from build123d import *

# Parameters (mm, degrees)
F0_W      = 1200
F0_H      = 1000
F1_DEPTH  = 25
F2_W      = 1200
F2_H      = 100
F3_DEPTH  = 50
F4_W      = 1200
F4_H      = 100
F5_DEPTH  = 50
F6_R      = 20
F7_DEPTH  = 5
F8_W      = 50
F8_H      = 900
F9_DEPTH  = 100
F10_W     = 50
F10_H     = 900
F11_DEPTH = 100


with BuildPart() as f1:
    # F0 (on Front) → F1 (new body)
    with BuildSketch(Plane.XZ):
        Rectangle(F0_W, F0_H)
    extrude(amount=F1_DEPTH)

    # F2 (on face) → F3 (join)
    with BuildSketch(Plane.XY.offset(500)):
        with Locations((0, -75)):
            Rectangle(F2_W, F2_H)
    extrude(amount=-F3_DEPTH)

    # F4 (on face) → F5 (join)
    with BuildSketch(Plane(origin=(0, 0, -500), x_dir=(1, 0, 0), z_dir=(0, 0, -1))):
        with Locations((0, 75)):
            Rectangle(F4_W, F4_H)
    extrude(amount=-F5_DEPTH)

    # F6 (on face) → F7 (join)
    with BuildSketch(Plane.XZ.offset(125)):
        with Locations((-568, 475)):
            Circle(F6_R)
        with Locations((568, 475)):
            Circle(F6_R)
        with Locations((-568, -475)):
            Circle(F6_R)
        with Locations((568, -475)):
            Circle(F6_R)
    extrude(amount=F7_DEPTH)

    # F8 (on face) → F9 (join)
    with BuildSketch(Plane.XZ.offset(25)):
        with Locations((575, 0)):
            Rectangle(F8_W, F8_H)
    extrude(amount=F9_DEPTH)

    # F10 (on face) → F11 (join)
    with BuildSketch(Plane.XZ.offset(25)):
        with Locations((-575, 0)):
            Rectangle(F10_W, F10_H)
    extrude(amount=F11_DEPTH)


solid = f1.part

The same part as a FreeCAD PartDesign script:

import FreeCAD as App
import Part
import Sketcher
from FreeCAD import Vector


def add_polygon(sketch, points):
    """Adds a closed chain of lines whose ends are joined by coincident constraints."""
    first, n = sketch.GeometryCount, len(points)
    for a, b in zip(points, points[1:] + points[:1]):
        sketch.addGeometry(Part.LineSegment(App.Vector(*a, 0), App.Vector(*b, 0)), False)
    for i in range(n):
        sketch.addConstraint(Sketcher.Constraint("Coincident", first + i, 2, first + (i + 1) % n, 1))

doc = App.newDocument("Part")
body = doc.addObject("PartDesign::Body", "Body")

# Sketch on XZ plane
sketch1 = doc.addObject("Sketcher::SketchObject", "Sketch")
body.addObject(sketch1)
sketch1.AttachmentSupport = (doc.XZ_Plane, [""])
sketch1.MapMode = "FlatFace"
add_polygon(sketch1, [(-600, 500), (-600, -500), (600, -500), (600, 500)])  # lines 0-3
sketch1.addConstraint(Sketcher.Constraint("Vertical", 0))
sketch1.addConstraint(Sketcher.Constraint("Horizontal", 1))
sketch1.addConstraint(Sketcher.Constraint("Vertical", 2))
sketch1.addConstraint(Sketcher.Constraint("Horizontal", 3))
sketch1.addConstraint(Sketcher.Constraint("Symmetric", 0, 2, 2, 2, -1, 1))
sketch1.addConstraint(Sketcher.Constraint("DistanceX", 1, 1, 1, 2, 1200.0))
sketch1.addConstraint(Sketcher.Constraint("DistanceY", 0, 2, 0, 1, 1000.0))
pad1 = doc.addObject("PartDesign::Pad", "Pad")
body.addObject(pad1)
pad1.Profile = sketch1
pad1.Length = 25

# Sketch on XY plane
sketch2 = doc.addObject("Sketcher::SketchObject", "Sketch001")
body.addObject(sketch2)
sketch2.AttachmentSupport = (doc.XY_Plane, [""])
sketch2.MapMode = "FlatFace"
sketch2.AttachmentOffset = App.Placement(Vector(0, 0, 500), App.Rotation())
add_polygon(sketch2, [(-600, -25), (-600, -125), (600, -125), (600, -25)])  # lines 0-3
sketch2.addConstraint(Sketcher.Constraint("Vertical", 0))
sketch2.addConstraint(Sketcher.Constraint("Horizontal", 1))
sketch2.addConstraint(Sketcher.Constraint("Vertical", 2))
sketch2.addConstraint(Sketcher.Constraint("Horizontal", 3))
sketch2.addConstraint(Sketcher.Constraint("DistanceX", 1, 1, 1, 2, 1200.0))
sketch2.addConstraint(Sketcher.Constraint("DistanceY", 0, 2, 0, 1, 100.0))
sketch2.addConstraint(Sketcher.Constraint("DistanceX", 0, 2, -1, 1, 600.0))
sketch2.addConstraint(Sketcher.Constraint("DistanceY", 0, 2, -1, 1, 125.0))
pad2 = doc.addObject("PartDesign::Pad", "Pad001")
body.addObject(pad2)
pad2.Profile = sketch2
pad2.Length = 50
pad2.Reversed = True

# Sketch on XY plane
sketch3 = doc.addObject("Sketcher::SketchObject", "Sketch002")
body.addObject(sketch3)
sketch3.AttachmentSupport = (doc.XY_Plane, [""])
sketch3.MapMode = "FlatFace"
sketch3.AttachmentOffset = App.Placement(Vector(0, 0, -500), App.Rotation())
add_polygon(sketch3, [(-600, -125), (-600, -25), (600, -25), (600, -125)])  # lines 0-3
sketch3.addConstraint(Sketcher.Constraint("Vertical", 0))
sketch3.addConstraint(Sketcher.Constraint("Horizontal", 1))
sketch3.addConstraint(Sketcher.Constraint("Vertical", 2))
sketch3.addConstraint(Sketcher.Constraint("Horizontal", 3))
sketch3.addConstraint(Sketcher.Constraint("DistanceX", 1, 1, 1, 2, 1200.0))
sketch3.addConstraint(Sketcher.Constraint("DistanceY", 0, 1, 0, 2, 100.0))
sketch3.addConstraint(Sketcher.Constraint("DistanceX", 0, 2, -1, 1, 600.0))
sketch3.addConstraint(Sketcher.Constraint("DistanceY", 0, 2, -1, 1, 25.0))
pad3 = doc.addObject("PartDesign::Pad", "Pad002")
body.addObject(pad3)
pad3.Profile = sketch3
pad3.Length = 50

# Sketch on XZ plane
sketch4 = doc.addObject("Sketcher::SketchObject", "Sketch003")
body.addObject(sketch4)
sketch4.AttachmentSupport = (doc.XZ_Plane, [""])
sketch4.MapMode = "FlatFace"
sketch4.AttachmentOffset = App.Placement(Vector(0, 0, 125), App.Rotation())
sketch4.addGeometry(Part.Circle(Vector(-568, 475, 0), Vector(0, 0, 1), 20), False)
sketch4.addGeometry(Part.Circle(Vector(568, 475, 0), Vector(0, 0, 1), 20), False)
sketch4.addGeometry(Part.Circle(Vector(-568, -475, 0), Vector(0, 0, 1), 20), False)
sketch4.addGeometry(Part.Circle(Vector(568, -475, 0), Vector(0, 0, 1), 20), False)
sketch4.addConstraint(Sketcher.Constraint("Equal", 0, 1))
sketch4.addConstraint(Sketcher.Constraint("Equal", 1, 2))
sketch4.addConstraint(Sketcher.Constraint("Equal", 2, 3))
sketch4.addConstraint(Sketcher.Constraint("Symmetric", 1, 3, 2, 3, -1, 1))
sketch4.addConstraint(Sketcher.Constraint("Symmetric", 0, 3, 3, 3, -1, 1))
sketch4.addConstraint(Sketcher.Constraint("Symmetric", 0, 3, 1, 3, -2))
sketch4.addConstraint(Sketcher.Constraint("Diameter", 0, 40.0))
sketch4.addConstraint(Sketcher.Constraint("DistanceX", 0, 3, -1, 1, 568.0))
sketch4.addConstraint(Sketcher.Constraint("DistanceY", -1, 1, 0, 3, 475.0))
pad4 = doc.addObject("PartDesign::Pad", "Pad003")
body.addObject(pad4)
pad4.Profile = sketch4
pad4.Length = 5

# Sketch on XZ plane
sketch5 = doc.addObject("Sketcher::SketchObject", "Sketch004")
body.addObject(sketch5)
sketch5.AttachmentSupport = (doc.XZ_Plane, [""])
sketch5.MapMode = "FlatFace"
sketch5.AttachmentOffset = App.Placement(Vector(0, 0, 25), App.Rotation())
add_polygon(sketch5, [(550, 450), (550, -450), (600, -450), (600, 450)])  # lines 0-3
sketch5.addConstraint(Sketcher.Constraint("Vertical", 0))
sketch5.addConstraint(Sketcher.Constraint("Horizontal", 1))
sketch5.addConstraint(Sketcher.Constraint("Vertical", 2))
sketch5.addConstraint(Sketcher.Constraint("Horizontal", 3))
sketch5.addConstraint(Sketcher.Constraint("DistanceX", 1, 1, 1, 2, 50.0))
sketch5.addConstraint(Sketcher.Constraint("DistanceY", 0, 2, 0, 1, 900.0))
sketch5.addConstraint(Sketcher.Constraint("DistanceX", -1, 1, 0, 2, 550.0))
sketch5.addConstraint(Sketcher.Constraint("DistanceY", 0, 2, -1, 1, 450.0))
pad5 = doc.addObject("PartDesign::Pad", "Pad004")
body.addObject(pad5)
pad5.Profile = sketch5
pad5.Length = 100

# Sketch on XZ plane
sketch6 = doc.addObject("Sketcher::SketchObject", "Sketch005")
body.addObject(sketch6)
sketch6.AttachmentSupport = (doc.XZ_Plane, [""])
sketch6.MapMode = "FlatFace"
sketch6.AttachmentOffset = App.Placement(Vector(0, 0, 25), App.Rotation())
add_polygon(sketch6, [(-600, 450), (-600, -450), (-550, -450), (-550, 450)])  # lines 0-3
sketch6.addConstraint(Sketcher.Constraint("Vertical", 0))
sketch6.addConstraint(Sketcher.Constraint("Horizontal", 1))
sketch6.addConstraint(Sketcher.Constraint("Vertical", 2))
sketch6.addConstraint(Sketcher.Constraint("Horizontal", 3))
sketch6.addConstraint(Sketcher.Constraint("DistanceX", 1, 1, 1, 2, 50.0))
sketch6.addConstraint(Sketcher.Constraint("DistanceY", 0, 2, 0, 1, 900.0))
sketch6.addConstraint(Sketcher.Constraint("DistanceX", 0, 2, -1, 1, 600.0))
sketch6.addConstraint(Sketcher.Constraint("DistanceY", 0, 2, -1, 1, 450.0))
pad6 = doc.addObject("PartDesign::Pad", "Pad005")
body.addObject(pad6)
pad6.Profile = sketch6
pad6.Length = 100

doc.recompute()
